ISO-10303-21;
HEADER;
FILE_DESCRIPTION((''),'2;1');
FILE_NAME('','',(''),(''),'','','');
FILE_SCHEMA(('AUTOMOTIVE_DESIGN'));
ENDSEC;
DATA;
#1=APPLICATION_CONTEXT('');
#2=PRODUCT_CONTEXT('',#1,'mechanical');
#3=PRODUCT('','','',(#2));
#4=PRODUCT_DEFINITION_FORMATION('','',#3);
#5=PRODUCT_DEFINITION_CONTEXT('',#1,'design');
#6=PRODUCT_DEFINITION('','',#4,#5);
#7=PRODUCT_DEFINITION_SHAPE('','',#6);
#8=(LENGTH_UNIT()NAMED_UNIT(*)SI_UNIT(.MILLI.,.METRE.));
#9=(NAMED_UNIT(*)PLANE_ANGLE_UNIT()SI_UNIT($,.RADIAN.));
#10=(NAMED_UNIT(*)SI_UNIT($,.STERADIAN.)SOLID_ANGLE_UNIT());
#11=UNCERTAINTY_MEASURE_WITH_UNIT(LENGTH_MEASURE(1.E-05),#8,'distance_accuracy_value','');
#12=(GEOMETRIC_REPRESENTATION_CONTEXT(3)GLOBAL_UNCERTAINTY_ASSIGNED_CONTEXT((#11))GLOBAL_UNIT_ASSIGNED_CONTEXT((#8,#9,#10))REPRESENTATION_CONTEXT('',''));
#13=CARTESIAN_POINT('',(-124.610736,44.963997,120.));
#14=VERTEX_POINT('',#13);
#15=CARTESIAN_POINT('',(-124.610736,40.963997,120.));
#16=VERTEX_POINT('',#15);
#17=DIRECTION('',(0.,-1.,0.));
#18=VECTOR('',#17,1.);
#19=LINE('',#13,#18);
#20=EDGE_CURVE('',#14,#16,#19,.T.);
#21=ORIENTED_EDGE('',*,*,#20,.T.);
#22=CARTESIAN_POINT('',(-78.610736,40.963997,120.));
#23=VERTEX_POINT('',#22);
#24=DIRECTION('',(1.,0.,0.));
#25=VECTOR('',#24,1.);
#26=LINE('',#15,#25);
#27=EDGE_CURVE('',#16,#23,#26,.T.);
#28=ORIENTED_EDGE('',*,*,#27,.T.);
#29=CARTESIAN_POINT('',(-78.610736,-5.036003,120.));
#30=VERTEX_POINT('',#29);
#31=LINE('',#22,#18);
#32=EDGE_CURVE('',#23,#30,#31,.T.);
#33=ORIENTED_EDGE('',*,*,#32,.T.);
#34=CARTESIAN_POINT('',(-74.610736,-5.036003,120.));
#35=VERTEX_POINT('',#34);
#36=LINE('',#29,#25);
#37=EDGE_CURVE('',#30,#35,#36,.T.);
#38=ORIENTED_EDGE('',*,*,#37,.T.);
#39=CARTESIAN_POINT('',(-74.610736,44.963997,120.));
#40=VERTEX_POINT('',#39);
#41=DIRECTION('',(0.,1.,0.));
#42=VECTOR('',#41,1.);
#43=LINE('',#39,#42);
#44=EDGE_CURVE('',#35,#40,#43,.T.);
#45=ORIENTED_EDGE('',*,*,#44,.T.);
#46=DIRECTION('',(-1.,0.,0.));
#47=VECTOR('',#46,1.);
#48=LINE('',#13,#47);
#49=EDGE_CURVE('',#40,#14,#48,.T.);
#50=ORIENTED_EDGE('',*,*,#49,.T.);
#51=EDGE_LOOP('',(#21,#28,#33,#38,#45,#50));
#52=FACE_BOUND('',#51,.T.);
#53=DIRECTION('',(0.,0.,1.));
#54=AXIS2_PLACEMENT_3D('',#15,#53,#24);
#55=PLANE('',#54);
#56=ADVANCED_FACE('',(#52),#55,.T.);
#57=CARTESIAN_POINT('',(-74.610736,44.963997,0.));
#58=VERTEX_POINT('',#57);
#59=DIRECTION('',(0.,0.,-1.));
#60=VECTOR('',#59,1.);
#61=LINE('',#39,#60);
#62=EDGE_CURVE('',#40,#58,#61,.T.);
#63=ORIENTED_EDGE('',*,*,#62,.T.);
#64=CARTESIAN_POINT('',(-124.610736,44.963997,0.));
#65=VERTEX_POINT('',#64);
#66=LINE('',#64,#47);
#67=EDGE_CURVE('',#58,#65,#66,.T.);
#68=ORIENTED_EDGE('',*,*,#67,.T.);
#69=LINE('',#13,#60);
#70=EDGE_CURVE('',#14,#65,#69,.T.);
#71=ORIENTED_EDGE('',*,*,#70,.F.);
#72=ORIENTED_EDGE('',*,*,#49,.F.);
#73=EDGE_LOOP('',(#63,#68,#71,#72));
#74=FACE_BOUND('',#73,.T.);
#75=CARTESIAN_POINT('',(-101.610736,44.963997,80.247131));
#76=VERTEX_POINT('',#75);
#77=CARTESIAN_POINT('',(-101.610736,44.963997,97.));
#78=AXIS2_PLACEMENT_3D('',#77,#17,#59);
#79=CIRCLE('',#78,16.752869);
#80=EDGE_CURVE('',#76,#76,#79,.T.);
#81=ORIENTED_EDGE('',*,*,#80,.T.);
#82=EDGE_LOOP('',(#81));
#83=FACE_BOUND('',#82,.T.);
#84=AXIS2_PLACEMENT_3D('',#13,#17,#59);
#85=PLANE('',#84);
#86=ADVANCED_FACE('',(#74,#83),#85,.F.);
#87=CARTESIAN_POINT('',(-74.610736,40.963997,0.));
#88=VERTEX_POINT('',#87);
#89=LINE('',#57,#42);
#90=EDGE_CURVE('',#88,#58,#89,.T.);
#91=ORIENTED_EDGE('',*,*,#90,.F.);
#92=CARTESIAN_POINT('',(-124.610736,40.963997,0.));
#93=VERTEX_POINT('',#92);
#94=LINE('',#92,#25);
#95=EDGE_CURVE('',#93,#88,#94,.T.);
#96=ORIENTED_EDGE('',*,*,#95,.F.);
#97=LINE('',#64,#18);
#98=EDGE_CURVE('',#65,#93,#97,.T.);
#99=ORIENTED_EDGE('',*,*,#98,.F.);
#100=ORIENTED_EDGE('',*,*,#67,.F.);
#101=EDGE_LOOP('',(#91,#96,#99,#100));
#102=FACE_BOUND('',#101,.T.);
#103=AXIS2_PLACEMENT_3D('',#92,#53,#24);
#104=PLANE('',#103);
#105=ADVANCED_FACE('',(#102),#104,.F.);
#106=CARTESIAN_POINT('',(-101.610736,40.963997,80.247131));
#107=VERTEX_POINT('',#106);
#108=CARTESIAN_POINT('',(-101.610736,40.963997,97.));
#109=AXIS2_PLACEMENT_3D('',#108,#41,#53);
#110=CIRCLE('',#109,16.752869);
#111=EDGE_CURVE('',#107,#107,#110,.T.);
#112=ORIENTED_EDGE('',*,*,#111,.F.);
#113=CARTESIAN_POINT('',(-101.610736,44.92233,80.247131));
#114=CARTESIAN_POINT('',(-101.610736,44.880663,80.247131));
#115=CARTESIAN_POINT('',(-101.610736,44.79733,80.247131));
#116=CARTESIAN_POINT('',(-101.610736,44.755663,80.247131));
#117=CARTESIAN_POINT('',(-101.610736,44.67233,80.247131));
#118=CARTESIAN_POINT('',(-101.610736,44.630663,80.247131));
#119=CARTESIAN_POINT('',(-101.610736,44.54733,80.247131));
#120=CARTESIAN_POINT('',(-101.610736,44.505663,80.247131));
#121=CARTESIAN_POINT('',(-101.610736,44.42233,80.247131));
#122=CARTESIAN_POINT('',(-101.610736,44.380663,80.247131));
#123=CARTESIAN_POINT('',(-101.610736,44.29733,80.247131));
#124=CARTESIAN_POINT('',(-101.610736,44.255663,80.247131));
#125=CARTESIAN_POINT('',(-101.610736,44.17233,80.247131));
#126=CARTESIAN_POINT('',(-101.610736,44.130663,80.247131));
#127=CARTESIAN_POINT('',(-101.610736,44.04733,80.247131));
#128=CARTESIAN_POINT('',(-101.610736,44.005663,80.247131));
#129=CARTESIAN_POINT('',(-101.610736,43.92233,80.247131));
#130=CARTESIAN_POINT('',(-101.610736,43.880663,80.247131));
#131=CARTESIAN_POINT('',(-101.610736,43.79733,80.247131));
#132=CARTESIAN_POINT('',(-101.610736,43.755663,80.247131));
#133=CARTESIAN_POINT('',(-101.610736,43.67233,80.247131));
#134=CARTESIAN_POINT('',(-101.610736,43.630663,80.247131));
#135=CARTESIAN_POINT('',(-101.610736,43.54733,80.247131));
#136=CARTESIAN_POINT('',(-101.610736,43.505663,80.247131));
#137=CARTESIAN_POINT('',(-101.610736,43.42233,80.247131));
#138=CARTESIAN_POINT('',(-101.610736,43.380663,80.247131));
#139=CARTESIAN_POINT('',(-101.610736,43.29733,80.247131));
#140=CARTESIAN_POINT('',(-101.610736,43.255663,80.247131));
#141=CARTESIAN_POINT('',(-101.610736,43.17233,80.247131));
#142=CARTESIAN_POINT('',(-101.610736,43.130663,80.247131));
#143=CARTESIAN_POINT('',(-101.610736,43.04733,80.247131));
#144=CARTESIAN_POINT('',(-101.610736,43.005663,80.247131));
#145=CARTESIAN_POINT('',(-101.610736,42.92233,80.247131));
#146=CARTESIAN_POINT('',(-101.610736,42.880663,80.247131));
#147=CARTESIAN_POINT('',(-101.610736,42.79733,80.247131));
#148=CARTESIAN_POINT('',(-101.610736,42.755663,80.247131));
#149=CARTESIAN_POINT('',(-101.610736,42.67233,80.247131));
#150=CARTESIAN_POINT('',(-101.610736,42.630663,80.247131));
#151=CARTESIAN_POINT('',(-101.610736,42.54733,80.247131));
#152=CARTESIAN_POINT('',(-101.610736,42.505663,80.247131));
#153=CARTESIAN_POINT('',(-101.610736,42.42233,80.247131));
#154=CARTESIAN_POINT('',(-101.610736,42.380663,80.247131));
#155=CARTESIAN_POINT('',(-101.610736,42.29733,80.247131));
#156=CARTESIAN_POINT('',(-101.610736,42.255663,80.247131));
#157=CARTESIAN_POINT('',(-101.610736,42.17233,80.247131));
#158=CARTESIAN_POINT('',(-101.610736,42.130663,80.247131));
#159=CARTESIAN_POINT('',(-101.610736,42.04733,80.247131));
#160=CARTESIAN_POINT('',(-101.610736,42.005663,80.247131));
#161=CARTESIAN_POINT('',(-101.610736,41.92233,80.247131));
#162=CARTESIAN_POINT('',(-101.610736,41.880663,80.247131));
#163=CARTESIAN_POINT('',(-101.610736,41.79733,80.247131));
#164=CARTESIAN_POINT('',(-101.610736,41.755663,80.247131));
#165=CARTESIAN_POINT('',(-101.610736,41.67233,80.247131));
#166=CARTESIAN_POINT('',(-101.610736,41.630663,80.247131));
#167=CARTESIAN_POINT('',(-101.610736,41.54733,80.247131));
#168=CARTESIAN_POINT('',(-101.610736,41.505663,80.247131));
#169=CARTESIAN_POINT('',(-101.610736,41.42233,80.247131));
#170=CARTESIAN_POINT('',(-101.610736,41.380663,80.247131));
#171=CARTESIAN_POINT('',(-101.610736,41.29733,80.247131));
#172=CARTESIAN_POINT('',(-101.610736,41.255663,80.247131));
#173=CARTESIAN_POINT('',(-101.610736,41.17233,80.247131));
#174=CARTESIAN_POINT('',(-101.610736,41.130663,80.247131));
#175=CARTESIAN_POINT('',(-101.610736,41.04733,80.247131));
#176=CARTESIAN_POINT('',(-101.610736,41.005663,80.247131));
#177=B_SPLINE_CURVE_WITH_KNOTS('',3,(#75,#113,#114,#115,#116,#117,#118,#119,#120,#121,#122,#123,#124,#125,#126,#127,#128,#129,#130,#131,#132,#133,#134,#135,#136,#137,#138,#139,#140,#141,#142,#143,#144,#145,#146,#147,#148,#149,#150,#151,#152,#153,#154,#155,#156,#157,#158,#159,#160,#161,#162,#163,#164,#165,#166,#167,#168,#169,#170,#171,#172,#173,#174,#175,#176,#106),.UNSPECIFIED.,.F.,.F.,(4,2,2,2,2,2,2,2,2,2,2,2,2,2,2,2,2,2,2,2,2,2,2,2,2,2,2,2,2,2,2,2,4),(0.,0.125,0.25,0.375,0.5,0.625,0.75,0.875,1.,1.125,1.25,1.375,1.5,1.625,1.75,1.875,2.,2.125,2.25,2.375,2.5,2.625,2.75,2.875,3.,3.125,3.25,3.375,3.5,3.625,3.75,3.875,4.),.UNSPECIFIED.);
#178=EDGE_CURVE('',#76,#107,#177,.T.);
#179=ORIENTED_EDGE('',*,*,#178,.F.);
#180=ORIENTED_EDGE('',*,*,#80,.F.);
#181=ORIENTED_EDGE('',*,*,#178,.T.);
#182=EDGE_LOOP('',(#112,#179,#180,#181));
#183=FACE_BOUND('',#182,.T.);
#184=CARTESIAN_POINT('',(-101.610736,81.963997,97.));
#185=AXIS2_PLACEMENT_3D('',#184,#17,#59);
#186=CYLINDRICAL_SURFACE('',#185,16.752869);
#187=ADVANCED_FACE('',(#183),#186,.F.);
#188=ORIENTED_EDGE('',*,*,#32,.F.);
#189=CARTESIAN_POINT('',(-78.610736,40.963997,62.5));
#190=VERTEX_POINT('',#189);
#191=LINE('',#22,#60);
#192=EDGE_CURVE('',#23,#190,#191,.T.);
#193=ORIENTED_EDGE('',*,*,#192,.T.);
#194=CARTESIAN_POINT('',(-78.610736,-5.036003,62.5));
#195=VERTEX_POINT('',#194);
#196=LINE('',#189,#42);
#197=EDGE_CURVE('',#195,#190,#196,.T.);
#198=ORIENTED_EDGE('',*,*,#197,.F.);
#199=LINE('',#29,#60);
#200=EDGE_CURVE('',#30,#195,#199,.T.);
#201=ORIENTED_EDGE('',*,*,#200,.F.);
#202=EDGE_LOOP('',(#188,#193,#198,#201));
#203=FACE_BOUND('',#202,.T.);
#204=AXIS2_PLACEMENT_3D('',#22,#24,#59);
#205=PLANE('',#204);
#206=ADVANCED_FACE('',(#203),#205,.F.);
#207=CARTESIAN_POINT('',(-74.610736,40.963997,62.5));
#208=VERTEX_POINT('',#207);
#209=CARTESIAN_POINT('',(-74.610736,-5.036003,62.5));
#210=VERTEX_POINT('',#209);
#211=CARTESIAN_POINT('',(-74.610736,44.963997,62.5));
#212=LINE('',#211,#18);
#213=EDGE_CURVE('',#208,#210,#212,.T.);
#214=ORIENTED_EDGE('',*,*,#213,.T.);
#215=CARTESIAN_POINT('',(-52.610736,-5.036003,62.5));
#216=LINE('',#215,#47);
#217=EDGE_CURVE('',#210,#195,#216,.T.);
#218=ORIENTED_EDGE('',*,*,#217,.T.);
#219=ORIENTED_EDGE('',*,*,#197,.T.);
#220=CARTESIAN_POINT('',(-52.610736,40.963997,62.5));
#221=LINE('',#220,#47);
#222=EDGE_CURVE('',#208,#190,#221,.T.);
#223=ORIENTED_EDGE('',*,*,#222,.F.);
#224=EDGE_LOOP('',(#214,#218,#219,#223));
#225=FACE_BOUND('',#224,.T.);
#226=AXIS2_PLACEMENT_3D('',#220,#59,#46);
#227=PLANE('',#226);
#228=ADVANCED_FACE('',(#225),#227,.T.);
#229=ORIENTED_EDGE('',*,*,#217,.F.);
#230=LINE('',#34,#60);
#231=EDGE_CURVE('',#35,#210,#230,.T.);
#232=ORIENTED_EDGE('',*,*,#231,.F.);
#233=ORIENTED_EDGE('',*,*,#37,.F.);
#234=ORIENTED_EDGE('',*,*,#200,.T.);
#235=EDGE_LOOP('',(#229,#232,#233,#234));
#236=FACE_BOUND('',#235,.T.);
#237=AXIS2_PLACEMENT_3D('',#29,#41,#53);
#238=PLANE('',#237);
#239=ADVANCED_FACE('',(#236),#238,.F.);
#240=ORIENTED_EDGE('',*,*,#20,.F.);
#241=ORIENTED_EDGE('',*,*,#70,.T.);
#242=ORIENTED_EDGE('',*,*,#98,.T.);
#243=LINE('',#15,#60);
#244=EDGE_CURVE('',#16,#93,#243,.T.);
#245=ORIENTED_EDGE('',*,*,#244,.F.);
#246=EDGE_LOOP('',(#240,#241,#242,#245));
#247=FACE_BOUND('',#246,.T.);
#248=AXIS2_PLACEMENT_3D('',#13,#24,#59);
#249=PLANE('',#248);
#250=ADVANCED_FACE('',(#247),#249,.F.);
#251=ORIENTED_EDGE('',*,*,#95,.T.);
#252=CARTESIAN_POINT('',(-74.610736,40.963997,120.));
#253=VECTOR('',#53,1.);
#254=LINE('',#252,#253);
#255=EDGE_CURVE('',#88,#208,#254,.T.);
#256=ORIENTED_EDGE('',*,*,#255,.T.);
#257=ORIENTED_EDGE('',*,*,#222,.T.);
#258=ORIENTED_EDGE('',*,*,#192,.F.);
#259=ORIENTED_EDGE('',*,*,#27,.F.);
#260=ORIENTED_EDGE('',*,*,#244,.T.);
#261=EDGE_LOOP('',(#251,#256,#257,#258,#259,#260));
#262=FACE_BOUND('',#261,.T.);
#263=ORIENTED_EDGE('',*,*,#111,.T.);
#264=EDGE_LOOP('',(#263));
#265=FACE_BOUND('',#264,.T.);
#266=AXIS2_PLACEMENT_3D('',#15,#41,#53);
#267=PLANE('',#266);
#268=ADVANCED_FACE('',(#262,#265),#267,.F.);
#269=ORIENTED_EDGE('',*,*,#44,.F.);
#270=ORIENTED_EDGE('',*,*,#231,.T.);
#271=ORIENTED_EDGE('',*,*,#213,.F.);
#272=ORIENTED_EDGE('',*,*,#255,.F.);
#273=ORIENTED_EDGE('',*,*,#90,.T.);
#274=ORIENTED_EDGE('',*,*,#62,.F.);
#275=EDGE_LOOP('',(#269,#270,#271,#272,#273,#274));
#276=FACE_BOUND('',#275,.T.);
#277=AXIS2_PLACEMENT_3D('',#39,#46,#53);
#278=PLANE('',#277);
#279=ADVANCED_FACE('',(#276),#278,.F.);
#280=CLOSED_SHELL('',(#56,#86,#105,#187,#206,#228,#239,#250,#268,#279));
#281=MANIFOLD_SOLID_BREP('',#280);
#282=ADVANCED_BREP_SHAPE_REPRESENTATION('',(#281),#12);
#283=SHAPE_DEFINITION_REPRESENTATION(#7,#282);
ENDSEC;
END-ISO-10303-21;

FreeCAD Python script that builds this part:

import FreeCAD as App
import Part
import Sketcher

V = App.Vector
Q = App.Units.Quantity

doc = App.newDocument("Part")
body = doc.addObject("PartDesign::Body", "Body")

# Sketch on XY plane
sketch1 = body.newObject("Sketcher::SketchObject", "Sketch")
sketch1.AttachmentSupport = (doc.getObject("XY_Plane"), [""])
sketch1.MapMode = "FlatFace"
sketch1.addGeometry([
    Part.LineSegment(V(-74.6, 45, 0), V(-124.6, 45, 0)),  # 0
    Part.LineSegment(V(-124.6, 45, 0), V(-124.6, 41, 0)),  # 1
    Part.LineSegment(V(-124.6, 41, 0), V(-78.6, 41, 0)),  # 2
    Part.LineSegment(V(-78.6, 41, 0), V(-78.6, -5, 0)),  # 3
    Part.LineSegment(V(-78.6, -5, 0), V(-74.6, -5, 0)),  # 4
    Part.LineSegment(V(-74.6, -5, 0), V(-74.6, 45, 0)),  # 5
], False)
sketch1.addConstraint([
    Sketcher.Constraint("Coincident", 0, 2, 1, 1),
    Sketcher.Constraint("Coincident", 1, 2, 2, 1),
    Sketcher.Constraint("Coincident", 2, 2, 3, 1),
    Sketcher.Constraint("Coincident", 3, 2, 4, 1),
    Sketcher.Constraint("Coincident", 4, 2, 5, 1),
    Sketcher.Constraint("Coincident", 5, 2, 0, 1),
    Sketcher.Constraint("Horizontal", 0),
    Sketcher.Constraint("Vertical", 1),
    Sketcher.Constraint("Horizontal", 2),
    Sketcher.Constraint("Vertical", 3),
    Sketcher.Constraint("Horizontal", 4),
    Sketcher.Constraint("Vertical", 5),
    Sketcher.Constraint("Equal", 4, 1),
    Sketcher.Constraint("Equal", 2, 3),
    Sketcher.Constraint("DistanceX", 0, 2, 0, 1, Q("50 mm")),
    Sketcher.Constraint("DistanceX", 2, 1, 2, 2, Q("46 mm")),
    Sketcher.Constraint("DistanceX", 0, 2, -1, 1, Q("124.610736 mm")),
    Sketcher.Constraint("DistanceY", -1, 1, 0, 2, Q("44.963997 mm")),
])
pad1 = body.newObject("PartDesign::Pad", "Pad")
pad1.Profile = sketch1
pad1.Length = 120

# Sketch on YZ plane
sketch2 = body.newObject("Sketcher::SketchObject", "Sketch001")
sketch2.AttachmentSupport = (doc.getObject("YZ_Plane"), [""])
sketch2.MapMode = "FlatFace"
sketch2.AttachmentOffset = App.Placement(V(0, 0, -78.610736), App.Rotation())
sketch2.addGeometry([
    Part.LineSegment(V(41, 0, 0), V(-5, 0, 0)),
    Part.LineSegment(V(-5, 0, 0), V(-5, 62, 0)),
    Part.LineSegment(V(-5, 62, 0), V(41, 62, 0)),
    Part.LineSegment(V(41, 62, 0), V(41, 0, 0)),
], False)
sketch2.addConstraint([
    Sketcher.Constraint("Coincident", 0, 2, 1, 1),
    Sketcher.Constraint("Coincident", 1, 2, 2, 1),
    Sketcher.Constraint("Coincident", 2, 2, 3, 1),
    Sketcher.Constraint("Coincident", 3, 2, 0, 1),
    Sketcher.Constraint("Horizontal", 0),
    Sketcher.Constraint("Vertical", 1),
    Sketcher.Constraint("Horizontal", 2),
    Sketcher.Constraint("Vertical", 3),
    Sketcher.Constraint("PointOnObject", 0, 2, -1),
    Sketcher.Constraint("DistanceX", 0, 2, 0, 1, Q("46 mm")),
    Sketcher.Constraint("DistanceY", 1, 1, 1, 2, Q("62.5 mm")),
    Sketcher.Constraint("DistanceX", 0, 2, -1, 1, Q("5.036003 mm")),
])
pocket1 = body.newObject("PartDesign::Pocket", "Pocket")
pocket1.Profile = sketch2
pocket1.Type = "ThroughAll"
pocket1.Midplane = True

# Sketch on XZ plane
sketch3 = body.newObject("Sketcher::SketchObject", "Sketch002")
sketch3.AttachmentSupport = (doc.getObject("XZ_Plane"), [""])
sketch3.MapMode = "FlatFace"
sketch3.AttachmentOffset = App.Placement(V(0, 0, -40.963997), App.Rotation())
sketch3.addGeometry(Part.Circle(V(-102, 97, 0), V(0, 0, 1), 17), False)
sketch3.addConstraint([
    Sketcher.Constraint("DistanceY", -1, 1, 0, 3, Q("97 mm")),
    Sketcher.Constraint("Diameter", 0, Q("33.505739 mm")),
    Sketcher.Constraint("DistanceX", 0, 3, -1, 1, Q("101.610736 mm")),
])
pocket2 = body.newObject("PartDesign::Pocket", "Pocket001")
pocket2.Profile = sketch3
pocket2.Type = "ThroughAll"
pocket2.Midplane = True

doc.recompute()
